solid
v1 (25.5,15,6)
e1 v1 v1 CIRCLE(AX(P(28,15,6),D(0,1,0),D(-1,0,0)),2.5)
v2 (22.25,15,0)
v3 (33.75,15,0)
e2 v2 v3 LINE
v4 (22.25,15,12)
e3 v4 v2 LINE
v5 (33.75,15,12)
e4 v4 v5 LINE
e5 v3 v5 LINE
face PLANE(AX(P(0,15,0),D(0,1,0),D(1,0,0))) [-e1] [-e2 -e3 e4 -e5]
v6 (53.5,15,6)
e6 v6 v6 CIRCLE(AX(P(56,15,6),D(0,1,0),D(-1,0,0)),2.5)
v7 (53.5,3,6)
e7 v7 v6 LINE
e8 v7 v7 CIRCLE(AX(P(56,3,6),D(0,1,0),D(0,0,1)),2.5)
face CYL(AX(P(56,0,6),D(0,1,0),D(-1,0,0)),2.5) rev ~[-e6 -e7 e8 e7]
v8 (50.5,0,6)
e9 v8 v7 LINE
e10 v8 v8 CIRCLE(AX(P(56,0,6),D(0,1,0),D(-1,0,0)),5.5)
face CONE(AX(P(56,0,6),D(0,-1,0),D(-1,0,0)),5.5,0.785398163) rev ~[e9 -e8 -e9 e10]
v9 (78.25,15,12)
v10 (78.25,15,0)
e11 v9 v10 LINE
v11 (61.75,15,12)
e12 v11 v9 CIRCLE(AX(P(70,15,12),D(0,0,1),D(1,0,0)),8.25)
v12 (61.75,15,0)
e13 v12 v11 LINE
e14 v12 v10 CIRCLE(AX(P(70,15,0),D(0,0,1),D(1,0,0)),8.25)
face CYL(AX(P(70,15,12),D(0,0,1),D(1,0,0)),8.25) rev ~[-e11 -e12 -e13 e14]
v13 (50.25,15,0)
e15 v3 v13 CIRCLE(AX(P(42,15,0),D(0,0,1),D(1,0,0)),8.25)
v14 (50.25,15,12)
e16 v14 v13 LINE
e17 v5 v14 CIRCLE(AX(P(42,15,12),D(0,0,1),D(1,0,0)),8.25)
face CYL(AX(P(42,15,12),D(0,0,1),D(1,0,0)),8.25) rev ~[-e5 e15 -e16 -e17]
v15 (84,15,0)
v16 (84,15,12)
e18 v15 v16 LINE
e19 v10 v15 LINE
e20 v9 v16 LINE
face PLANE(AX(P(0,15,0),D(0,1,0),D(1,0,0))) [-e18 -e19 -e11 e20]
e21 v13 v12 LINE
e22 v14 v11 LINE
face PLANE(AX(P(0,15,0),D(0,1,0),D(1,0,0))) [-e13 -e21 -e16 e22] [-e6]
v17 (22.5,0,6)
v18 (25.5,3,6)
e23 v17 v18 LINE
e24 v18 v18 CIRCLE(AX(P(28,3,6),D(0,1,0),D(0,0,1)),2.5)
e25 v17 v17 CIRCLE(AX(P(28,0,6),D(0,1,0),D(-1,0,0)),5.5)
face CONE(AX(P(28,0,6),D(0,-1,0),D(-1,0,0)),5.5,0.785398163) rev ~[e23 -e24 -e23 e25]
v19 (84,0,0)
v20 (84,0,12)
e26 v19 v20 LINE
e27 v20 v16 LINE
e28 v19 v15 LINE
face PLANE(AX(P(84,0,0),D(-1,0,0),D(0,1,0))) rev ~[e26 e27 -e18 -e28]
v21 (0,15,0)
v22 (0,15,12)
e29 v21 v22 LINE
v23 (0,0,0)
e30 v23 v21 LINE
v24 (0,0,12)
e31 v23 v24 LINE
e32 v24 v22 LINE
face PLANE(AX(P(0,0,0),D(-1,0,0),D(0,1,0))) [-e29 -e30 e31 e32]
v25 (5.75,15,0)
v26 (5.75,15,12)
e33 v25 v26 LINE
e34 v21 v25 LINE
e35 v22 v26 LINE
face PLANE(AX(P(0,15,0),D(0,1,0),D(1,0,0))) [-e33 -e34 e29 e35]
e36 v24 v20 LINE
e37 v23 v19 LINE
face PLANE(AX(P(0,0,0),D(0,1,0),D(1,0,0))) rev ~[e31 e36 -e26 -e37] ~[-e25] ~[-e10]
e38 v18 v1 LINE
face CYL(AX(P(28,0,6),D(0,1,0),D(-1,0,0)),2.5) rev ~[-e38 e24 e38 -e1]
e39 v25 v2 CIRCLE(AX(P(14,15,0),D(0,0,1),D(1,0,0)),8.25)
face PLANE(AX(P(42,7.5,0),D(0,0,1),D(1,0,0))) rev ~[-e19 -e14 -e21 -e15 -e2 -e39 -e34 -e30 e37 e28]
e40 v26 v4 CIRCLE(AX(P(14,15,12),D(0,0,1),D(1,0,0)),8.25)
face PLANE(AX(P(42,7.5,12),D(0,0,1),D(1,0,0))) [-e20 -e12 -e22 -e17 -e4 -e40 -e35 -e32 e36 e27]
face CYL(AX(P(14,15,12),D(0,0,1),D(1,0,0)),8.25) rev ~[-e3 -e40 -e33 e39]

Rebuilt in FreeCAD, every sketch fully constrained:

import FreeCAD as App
import Part
import Sketcher
from FreeCAD import Vector


def add_polygon(sketch, points):
    """Adds a closed chain of lines whose ends are joined by coincident constraints."""
    first, n = sketch.GeometryCount, len(points)
    for a, b in zip(points, points[1:] + points[:1]):
        sketch.addGeometry(Part.LineSegment(App.Vector(*a, 0), App.Vector(*b, 0)), False)
    for i in range(n):
        sketch.addConstraint(Sketcher.Constraint("Coincident", first + i, 2, first + (i + 1) % n, 1))

doc = App.newDocument("Part")
body = doc.addObject("PartDesign::Body", "Body")

# Sketch on XY plane
sketch1 = body.newObject("Sketcher::SketchObject", "Sketch")
sketch1.AttachmentSupport = (doc.getObject("XY_Plane"), [""])
sketch1.MapMode = "FlatFace"
add_polygon(sketch1, [(0, 15), (0, 0), (84, 0), (84, 15)])  # lines 0-3
sketch1.addConstraint([
    Sketcher.Constraint("Vertical", 0),
    Sketcher.Constraint("Horizontal", 1),
    Sketcher.Constraint("Vertical", 2),
    Sketcher.Constraint("Horizontal", 3),
    Sketcher.Constraint("Coincident", 0, 2, -1, 1),
    Sketcher.Constraint("DistanceX", 1, 1, 1, 2, 84.0),
    Sketcher.Constraint("DistanceY", 0, 2, 0, 1, 15.0),
])
pad1 = body.newObject("PartDesign::Pad", "Pad")
pad1.Profile = sketch1
pad1.Length = 12

# Sketch on XY plane
sketch2 = body.newObject("Sketcher::SketchObject", "Sketch001")
sketch2.AttachmentSupport = (doc.getObject("XY_Plane"), [""])
sketch2.MapMode = "FlatFace"
sketch2.AttachmentOffset = App.Placement(Vector(0, 0, 12), App.Rotation())
sketch2.addGeometry(Part.Circle(Vector(14, 15, 0), Vector(0, 0, 1), 8.25), False)
sketch2.addConstraint([
    Sketcher.Constraint("Diameter", 0, 16.5),
    Sketcher.Constraint("DistanceX", -1, 1, 0, 3, 14.0),
    Sketcher.Constraint("DistanceY", -1, 1, 0, 3, 15.0),
])
pocket1 = body.newObject("PartDesign::Pocket", "Pocket")
pocket1.Profile = sketch2
pocket1.Type = "ThroughAll"
doc.recompute()

linearpattern = body.newObject("PartDesign::LinearPattern", "LinearPattern")
linearpattern.Originals = [pocket1]
linearpattern.Direction = (doc.getObject("X_Axis"), [""])
linearpattern.Mode = "offset"
linearpattern.Offset = 28
linearpattern.Occurrences = 3
body.Tip = linearpattern

# Sketch on XZ plane
sketch3 = body.newObject("Sketcher::SketchObject", "Sketch002")
sketch3.AttachmentSupport = (doc.getObject("XZ_Plane"), [""])
sketch3.MapMode = "FlatFace"
sketch3.addGeometry(Part.Circle(Vector(28, 6, 0), Vector(0, 0, 1), 2.5), False)
sketch3.addConstraint([
    Sketcher.Constraint("Diameter", 0, 5.0),
    Sketcher.Constraint("DistanceX", -1, 1, 0, 3, 28.0),
    Sketcher.Constraint("DistanceY", -1, 1, 0, 3, 6.0),
])
doc.recompute()
hole = body.newObject("PartDesign::Hole", "Hole")
hole.Profile = sketch3
hole.ThreadType = "None"
hole.Diameter = 5
hole.DepthType = "ThroughAll"
hole.HoleCutType = "Countersink"
hole.HoleCutDiameter = 11
hole.HoleCutCountersinkAngle = 90
doc.recompute()

linearpattern2 = body.newObject("PartDesign::LinearPattern", "LinearPattern001")
linearpattern2.Originals = [hole]
linearpattern2.Direction = (doc.getObject("X_Axis"), [""])
linearpattern2.Mode = "offset"
linearpattern2.Offset = 28
linearpattern2.Occurrences = 2
body.Tip = linearpattern2

doc.recompute()
